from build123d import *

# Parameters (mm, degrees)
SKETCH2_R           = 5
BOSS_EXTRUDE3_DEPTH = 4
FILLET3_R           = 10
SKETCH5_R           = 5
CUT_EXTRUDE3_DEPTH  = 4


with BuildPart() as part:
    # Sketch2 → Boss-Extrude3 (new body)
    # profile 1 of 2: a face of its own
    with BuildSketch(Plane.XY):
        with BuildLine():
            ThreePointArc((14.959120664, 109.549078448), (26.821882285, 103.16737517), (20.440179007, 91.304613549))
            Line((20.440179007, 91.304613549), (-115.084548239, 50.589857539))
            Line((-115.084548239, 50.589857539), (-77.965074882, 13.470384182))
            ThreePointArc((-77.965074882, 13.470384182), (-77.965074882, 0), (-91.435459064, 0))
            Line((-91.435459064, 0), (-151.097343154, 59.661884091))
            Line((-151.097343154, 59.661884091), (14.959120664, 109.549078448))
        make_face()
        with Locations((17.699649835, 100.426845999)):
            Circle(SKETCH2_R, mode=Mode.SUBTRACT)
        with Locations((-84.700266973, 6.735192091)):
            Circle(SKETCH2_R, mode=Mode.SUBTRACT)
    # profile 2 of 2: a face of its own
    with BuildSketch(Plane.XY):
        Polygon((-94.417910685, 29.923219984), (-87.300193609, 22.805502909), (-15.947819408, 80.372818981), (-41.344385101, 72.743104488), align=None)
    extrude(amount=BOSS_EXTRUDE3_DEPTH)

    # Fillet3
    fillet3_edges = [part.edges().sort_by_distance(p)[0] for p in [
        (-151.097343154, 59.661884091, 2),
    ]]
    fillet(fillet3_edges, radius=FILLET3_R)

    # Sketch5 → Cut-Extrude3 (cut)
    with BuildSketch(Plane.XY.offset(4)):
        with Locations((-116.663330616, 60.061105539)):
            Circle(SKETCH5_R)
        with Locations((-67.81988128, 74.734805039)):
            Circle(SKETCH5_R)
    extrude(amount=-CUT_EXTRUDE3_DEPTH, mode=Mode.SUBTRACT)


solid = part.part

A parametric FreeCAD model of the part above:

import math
import FreeCAD as App
import Part
import Sketcher
Q = App.Units.Quantity


def edges_at(feature, points):
    """Names of the edges that pass closest to the given points."""
    edges = feature.Shape.Edges
    near = lambda p: min(range(len(edges)), key=lambda i: edges[i].distToShape(Part.Vertex(*p))[0])
    return sorted({f"Edge{near(p) + 1}" for p in points})


def add_polygon(sketch, points):
    """Adds a closed chain of lines whose ends are joined by coincident constraints."""
    first, n = sketch.GeometryCount, len(points)
    for a, b in zip(points, points[1:] + points[:1]):
        sketch.addGeometry(Part.LineSegment(App.Vector(*a, 0), App.Vector(*b, 0)), False)
    for i in range(n):
        sketch.addConstraint(Sketcher.Constraint("Coincident", first + i, 2, first + (i + 1) % n, 1))

doc = App.newDocument("Part")
body = doc.addObject("PartDesign::Body", "Body")

sketch1 = doc.addObject("Sketcher::SketchObject", "Sketch")
body.addObject(sketch1)
sketch1.AttachmentSupport = (doc.XY_Plane, [""])
sketch1.MapMode = "FlatFace"
sketch1.addGeometry(Part.ArcOfCircle(Part.Circle(App.Vector(17.69965, 100.426846, 0), App.Vector(0, 0, 1), 9.525), math.radians(-73.278519), math.radians(106.721481)), False)
sketch1.addGeometry(Part.LineSegment(App.Vector(14.959121, 109.549078, 0), App.Vector(-151.097343, 59.661884, 0)), False)
sketch1.addGeometry(Part.LineSegment(App.Vector(-151.097343, 59.661884, 0), App.Vector(-91.435459, 0, 0)), False)
sketch1.addGeometry(Part.ArcOfCircle(Part.Circle(App.Vector(-84.700267, 6.735192, 0), App.Vector(0, 0, 1), 9.525), math.radians(-135), math.radians(45)), False)
sketch1.addGeometry(Part.LineSegment(App.Vector(-77.965075, 13.470384, 0), App.Vector(-87.300194, 22.805503, 0)), False)
sketch1.addGeometry(Part.LineSegment(App.Vector(-87.300194, 22.805503, 0), App.Vector(-15.947819, 80.372819, 0)), False)
sketch1.addGeometry(Part.LineSegment(App.Vector(-15.947819, 80.372819, 0), App.Vector(20.440179, 91.304614, 0)), False)
add_polygon(sketch1, [(-115.084548, 50.589858), (-41.344385, 72.743104), (-94.417911, 29.92322)])
sketch1.addGeometry(Part.Circle(App.Vector(-84.700267, 6.735192, 0), App.Vector(0, 0, 1), 5), False)
sketch1.addGeometry(Part.Circle(App.Vector(17.69965, 100.426846, 0), App.Vector(0, 0, 1), 5), False)
sketch1.addConstraint(Sketcher.Constraint("Tangent", 0, 2, 1, 1))
sketch1.addConstraint(Sketcher.Constraint("Coincident", 1, 2, 2, 1))
sketch1.addConstraint(Sketcher.Constraint("Tangent", 2, 2, 3, 1))
sketch1.addConstraint(Sketcher.Constraint("Tangent", 3, 2, 4, 1))
sketch1.addConstraint(Sketcher.Constraint("Coincident", 4, 2, 5, 1))
sketch1.addConstraint(Sketcher.Constraint("Coincident", 5, 2, 6, 1))
sketch1.addConstraint(Sketcher.Constraint("Tangent", 6, 2, 0, 1))
sketch1.addConstraint(Sketcher.Constraint("Coincident", 10, 3, 3, 3))
sketch1.addConstraint(Sketcher.Constraint("Coincident", 11, 3, 0, 3))
sketch1.addConstraint(Sketcher.Constraint("Equal", 0, 3))
sketch1.addConstraint(Sketcher.Constraint("Equal", 10, 11))
sketch1.addConstraint(Sketcher.Constraint("PointOnObject", 2, 2, -1))
sketch1.addConstraint(Sketcher.Constraint("Parallel", 2, 4))
sketch1.addConstraint(Sketcher.Constraint("Parallel", 1, 6))
sketch1.addConstraint(Sketcher.Constraint("Parallel", 6, 7))
sketch1.addConstraint(Sketcher.Constraint("Parallel", 5, 8))
sketch1.addConstraint(Sketcher.Constraint("Parallel", 4, 9))
sketch1.addConstraint(Sketcher.Constraint("Diameter", 10, Q("10 mm")))
sketch1.addConstraint(Sketcher.Constraint("Angle", 2, Q("-45 deg")))
sketch1.addConstraint(Sketcher.Constraint("Radius", 0, Q("9.525 mm")))
sketch1.addConstraint(Sketcher.Constraint("DistanceX", 5, 2, 6, 2, Q("36.387998 mm")))
sketch1.addConstraint(Sketcher.Constraint("DistanceY", 3, 2, 1, 2, Q("46.1915 mm")))
sketch1.addConstraint(Sketcher.Constraint("Distance", 1, Q("173.388239 mm")))
sketch1.addConstraint(Sketcher.Constraint("Distance", 4, Q("13.201852 mm")))
sketch1.addConstraint(Sketcher.Constraint("Distance", 7, Q("76.995961 mm")))
sketch1.addConstraint(Sketcher.Constraint("Distance", 9, Q("29.227039 mm")))
sketch1.addConstraint(Sketcher.Constraint("DistanceX", -1, 1, 0, 3, Q("17.69965 mm")))
sketch1.addConstraint(Sketcher.Constraint("DistanceX", 8, 2, -1, 1, Q("94.417911 mm")))
sketch1.addConstraint(Sketcher.Constraint("DistanceY", -1, 1, 8, 2, Q("29.92322 mm")))
pad1 = doc.addObject("PartDesign::Pad", "Pad")
body.addObject(pad1)
pad1.Profile = sketch1
pad1.Length = 4
doc.recompute()

fillet = doc.addObject("PartDesign::Fillet", "Fillet")
body.addObject(fillet)
fillet.Base = (pad1, edges_at(pad1, [(-151.097, 59.662, 2)]))
fillet.Radius = 10

sketch2 = doc.addObject("Sketcher::SketchObject", "Sketch001")
body.addObject(sketch2)
sketch2.AttachmentSupport = (doc.XY_Plane, [""])
sketch2.MapMode = "FlatFace"
sketch2.AttachmentOffset = App.Placement(App.Vector(0, 0, 4), App.Rotation())
sketch2.addGeometry(Part.Circle(App.Vector(-116.663331, 60.061106, 0), App.Vector(0, 0, 1), 5), False)
sketch2.addGeometry(Part.Circle(App.Vector(-67.819881, 74.734805, 0), App.Vector(0, 0, 1), 5), False)
sketch2.addConstraint(Sketcher.Constraint("Equal", 0, 1))
sketch2.addConstraint(Sketcher.Constraint("Diameter", 0, Q("10 mm")))
sketch2.addConstraint(Sketcher.Constraint("DistanceY", 0, 3, 1, 3, Q("14.673699 mm")))
sketch2.addConstraint(Sketcher.Constraint("DistanceX", 0, 3, -1, 1, Q("116.663331 mm")))
sketch2.addConstraint(Sketcher.Constraint("DistanceX", 1, 3, -1, 1, Q("67.819881 mm")))
sketch2.addConstraint(Sketcher.Constraint("DistanceY", -1, 1, 0, 3, Q("60.061106 mm")))
pocket1 = doc.addObject("PartDesign::Pocket", "Pocket")
body.addObject(pocket1)
pocket1.Profile = sketch2
pocket1.Length = 4

doc.recompute()
